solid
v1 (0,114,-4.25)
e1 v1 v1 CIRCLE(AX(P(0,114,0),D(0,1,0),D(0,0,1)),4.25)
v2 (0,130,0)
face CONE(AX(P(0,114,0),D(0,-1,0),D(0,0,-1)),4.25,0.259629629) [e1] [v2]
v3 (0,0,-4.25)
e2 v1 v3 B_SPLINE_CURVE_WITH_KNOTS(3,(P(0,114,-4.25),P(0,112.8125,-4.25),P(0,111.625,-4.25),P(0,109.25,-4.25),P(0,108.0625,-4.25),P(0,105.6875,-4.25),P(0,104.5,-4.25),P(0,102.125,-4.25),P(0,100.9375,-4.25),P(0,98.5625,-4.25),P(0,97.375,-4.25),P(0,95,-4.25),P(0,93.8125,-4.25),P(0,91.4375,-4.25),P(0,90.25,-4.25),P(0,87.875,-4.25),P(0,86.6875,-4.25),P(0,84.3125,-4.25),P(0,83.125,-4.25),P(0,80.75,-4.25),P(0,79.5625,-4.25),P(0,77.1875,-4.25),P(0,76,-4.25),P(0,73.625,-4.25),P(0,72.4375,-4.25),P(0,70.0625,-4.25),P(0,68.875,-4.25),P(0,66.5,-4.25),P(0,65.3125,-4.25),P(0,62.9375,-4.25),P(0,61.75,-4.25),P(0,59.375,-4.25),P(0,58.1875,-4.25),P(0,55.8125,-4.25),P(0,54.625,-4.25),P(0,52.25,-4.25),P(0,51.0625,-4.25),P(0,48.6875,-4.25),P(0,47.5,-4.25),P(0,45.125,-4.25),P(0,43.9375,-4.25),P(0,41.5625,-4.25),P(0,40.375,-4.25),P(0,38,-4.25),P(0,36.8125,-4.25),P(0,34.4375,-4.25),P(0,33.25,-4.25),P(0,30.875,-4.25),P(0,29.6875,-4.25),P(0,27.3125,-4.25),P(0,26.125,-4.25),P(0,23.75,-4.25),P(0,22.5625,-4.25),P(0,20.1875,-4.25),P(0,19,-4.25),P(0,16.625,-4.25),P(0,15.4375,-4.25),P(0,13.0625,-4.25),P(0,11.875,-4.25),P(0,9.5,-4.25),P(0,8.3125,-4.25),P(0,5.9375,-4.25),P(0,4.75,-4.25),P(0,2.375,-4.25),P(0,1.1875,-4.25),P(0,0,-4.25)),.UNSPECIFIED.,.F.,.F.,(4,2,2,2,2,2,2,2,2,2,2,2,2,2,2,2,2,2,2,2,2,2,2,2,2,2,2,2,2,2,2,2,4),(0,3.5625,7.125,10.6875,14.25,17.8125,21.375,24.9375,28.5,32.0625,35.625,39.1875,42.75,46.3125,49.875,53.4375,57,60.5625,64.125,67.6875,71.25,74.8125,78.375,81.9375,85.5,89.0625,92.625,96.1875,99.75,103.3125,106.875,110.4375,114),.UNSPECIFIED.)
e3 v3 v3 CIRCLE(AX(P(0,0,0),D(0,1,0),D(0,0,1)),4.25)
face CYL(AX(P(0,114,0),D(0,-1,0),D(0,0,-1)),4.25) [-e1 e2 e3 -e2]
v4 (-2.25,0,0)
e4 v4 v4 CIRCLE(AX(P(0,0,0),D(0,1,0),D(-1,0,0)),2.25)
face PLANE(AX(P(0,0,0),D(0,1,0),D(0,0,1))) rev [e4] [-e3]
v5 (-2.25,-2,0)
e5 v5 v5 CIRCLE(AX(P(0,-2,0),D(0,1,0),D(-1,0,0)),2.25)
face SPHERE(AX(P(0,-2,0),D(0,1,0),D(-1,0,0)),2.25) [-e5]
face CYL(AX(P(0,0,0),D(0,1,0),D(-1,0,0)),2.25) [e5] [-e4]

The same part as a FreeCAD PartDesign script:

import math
import FreeCAD as App
import Part
import Sketcher
from FreeCAD import Vector


def add_polygon(sketch, points):
    """Adds a closed chain of lines whose ends are joined by coincident constraints."""
    first, n = sketch.GeometryCount, len(points)
    for a, b in zip(points, points[1:] + points[:1]):
        sketch.addGeometry(Part.LineSegment(App.Vector(*a, 0), App.Vector(*b, 0)), False)
    for i in range(n):
        sketch.addConstraint(Sketcher.Constraint("Coincident", first + i, 2, first + (i + 1) % n, 1))

doc = App.newDocument("Part")
body = doc.addObject("PartDesign::Body", "Body")

# Sketch on XZ plane
sketch1 = body.newObject("Sketcher::SketchObject", "Sketch")
sketch1.AttachmentSupport = (doc.getObject("XZ_Plane"), [""])
sketch1.MapMode = "FlatFace"
sketch1.addGeometry(Part.Circle(Vector(0, 0, 0), Vector(0, 0, 1), 4.2), False)
sketch1.addConstraint([
    Sketcher.Constraint("Coincident", 0, 3, -1, 1),
    Sketcher.Constraint("Diameter", 0, 8.5),
])
pad1 = body.newObject("PartDesign::Pad", "Pad")
pad1.Profile = sketch1
pad1.Length = 114
pad1.Reversed = True

# Sketch on XY plane
sketch2 = body.newObject("Sketcher::SketchObject", "Sketch001")
sketch2.AttachmentSupport = (doc.getObject("XY_Plane"), [""])
sketch2.MapMode = "FlatFace"
sketch2.addGeometry([
    Part.LineSegment(Vector(2.2, -2, 0), Vector(2.2, 0, 0)),
    Part.LineSegment(Vector(2.2, 0, 0), Vector(0, 0, 0)),
    Part.LineSegment(Vector(0, 0, 0), Vector(0, -4.2, 0)),
    Part.ArcOfCircle(Part.Circle(Vector(0, -2, 0), Vector(0, 0, 1), 2.2), math.radians(-90), math.radians(0)),
], False)
sketch2.addConstraint([
    Sketcher.Constraint("Coincident", 0, 2, 1, 1),
    Sketcher.Constraint("Coincident", 1, 2, 2, 1),
    Sketcher.Constraint("Coincident", 2, 2, 3, 1),
    Sketcher.Constraint("Tangent", 3, 2, 0, 1),
    Sketcher.Constraint("Vertical", 0),
    Sketcher.Constraint("Horizontal", 1),
    Sketcher.Constraint("Vertical", 2),
    Sketcher.Constraint("Coincident", 1, 2, -1, 1),
    Sketcher.Constraint("PointOnObject", 3, 3, -2),
    Sketcher.Constraint("DistanceY", 0, 1, 0, 2, 2.0),
    Sketcher.Constraint("Radius", 3, 2.25),
])
revolution = body.newObject("PartDesign::Revolution", "Revolution")
revolution.Profile = sketch2
revolution.ReferenceAxis = (sketch2, ["V_Axis"])
revolution.Angle = 360

# Sketch on XY plane
sketch3 = body.newObject("Sketcher::SketchObject", "Sketch002")
sketch3.AttachmentSupport = (doc.getObject("XY_Plane"), [""])
sketch3.MapMode = "FlatFace"
add_polygon(sketch3, [(0, 130), (0, 114), (4.2, 114)])  # lines 0-2
sketch3.addConstraint([
    Sketcher.Constraint("Vertical", 0),
    Sketcher.Constraint("Horizontal", 1),
    Sketcher.Constraint("PointOnObject", 0, 2, -2),
    Sketcher.Constraint("DistanceY", 0, 2, 0, 1, 16.0),
    Sketcher.Constraint("DistanceY", -1, 1, 0, 2, 114.0),
    Sketcher.Constraint("DistanceX", 1, 1, 1, 2, 4.25),
])
revolution2 = body.newObject("PartDesign::Revolution", "Revolution001")
revolution2.Profile = sketch3
revolution2.ReferenceAxis = (sketch3, ["V_Axis"])
revolution2.Angle = 360

doc.recompute()
